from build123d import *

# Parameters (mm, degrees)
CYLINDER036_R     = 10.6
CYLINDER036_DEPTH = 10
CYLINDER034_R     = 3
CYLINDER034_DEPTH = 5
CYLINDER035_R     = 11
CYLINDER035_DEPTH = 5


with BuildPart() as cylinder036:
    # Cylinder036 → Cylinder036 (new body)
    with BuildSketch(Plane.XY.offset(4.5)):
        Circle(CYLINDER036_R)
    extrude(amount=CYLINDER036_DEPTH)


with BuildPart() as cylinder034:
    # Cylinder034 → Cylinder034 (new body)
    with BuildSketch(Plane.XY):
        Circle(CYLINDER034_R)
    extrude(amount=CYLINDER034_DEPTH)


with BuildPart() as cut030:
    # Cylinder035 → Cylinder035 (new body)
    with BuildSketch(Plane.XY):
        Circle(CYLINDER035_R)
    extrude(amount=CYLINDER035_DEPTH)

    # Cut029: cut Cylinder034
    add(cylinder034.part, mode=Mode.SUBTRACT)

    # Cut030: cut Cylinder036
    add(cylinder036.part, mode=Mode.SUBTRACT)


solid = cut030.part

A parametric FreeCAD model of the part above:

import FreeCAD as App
import Part
import Sketcher

V = App.Vector

doc = App.newDocument("Part")
body = doc.addObject("PartDesign::Body", "Body")

# Sketch on XY plane
sketch1 = doc.addObject("Sketcher::SketchObject", "Sketch")
body.addObject(sketch1)
sketch1.AttachmentSupport = (doc.XY_Plane, [""])
sketch1.MapMode = "FlatFace"
sketch1.AttachmentOffset = App.Placement(V(0, 0, 4.5), App.Rotation())
sketch1.addGeometry(Part.Circle(V(0, 0, 0), V(0, 0, 1), 10.6), False)
sketch1.addConstraint([
    Sketcher.Constraint("Coincident", 0, 3, -1, 1),
    Sketcher.Constraint("Diameter", 0, 21.2),
])
pad1 = doc.addObject("PartDesign::Pad", "Pad")
body.addObject(pad1)
pad1.Profile = sketch1
pad1.Length = 10
body2 = doc.addObject("PartDesign::Body", "Body001")

# Sketch on XY plane
sketch2 = doc.addObject("Sketcher::SketchObject", "Sketch001")
body2.addObject(sketch2)
sketch2.AttachmentSupport = (doc.getObject("XY_Plane001"), [""])
sketch2.MapMode = "FlatFace"
sketch2.addGeometry(Part.Circle(V(0, 0, 0), V(0, 0, 1), 3), False)
sketch2.addConstraint([
    Sketcher.Constraint("Coincident", 0, 3, -1, 1),
    Sketcher.Constraint("Diameter", 0, 6.0),
])
pad2 = doc.addObject("PartDesign::Pad", "Pad001")
body2.addObject(pad2)
pad2.Profile = sketch2
pad2.Length = 5
body3 = doc.addObject("PartDesign::Body", "Body002")

# Sketch on XY plane
sketch3 = doc.addObject("Sketcher::SketchObject", "Sketch002")
body3.addObject(sketch3)
sketch3.AttachmentSupport = (doc.getObject("XY_Plane002"), [""])
sketch3.MapMode = "FlatFace"
sketch3.addGeometry(Part.Circle(V(0, 0, 0), V(0, 0, 1), 11), False)
sketch3.addConstraint([
    Sketcher.Constraint("Coincident", 0, 3, -1, 1),
    Sketcher.Constraint("Diameter", 0, 22.0),
])
pad3 = doc.addObject("PartDesign::Pad", "Pad002")
body3.addObject(pad3)
pad3.Profile = sketch3
pad3.Length = 5
doc.recompute()

boolean = doc.addObject("PartDesign::Boolean", "Boolean")
body3.addObject(boolean)
boolean.Type = "Cut"
boolean.addObjects([body2])
doc.recompute()

boolean2 = doc.addObject("PartDesign::Boolean", "Boolean001")
body3.addObject(boolean2)
boolean2.Type = "Cut"
boolean2.addObjects([body])

doc.recompute()
